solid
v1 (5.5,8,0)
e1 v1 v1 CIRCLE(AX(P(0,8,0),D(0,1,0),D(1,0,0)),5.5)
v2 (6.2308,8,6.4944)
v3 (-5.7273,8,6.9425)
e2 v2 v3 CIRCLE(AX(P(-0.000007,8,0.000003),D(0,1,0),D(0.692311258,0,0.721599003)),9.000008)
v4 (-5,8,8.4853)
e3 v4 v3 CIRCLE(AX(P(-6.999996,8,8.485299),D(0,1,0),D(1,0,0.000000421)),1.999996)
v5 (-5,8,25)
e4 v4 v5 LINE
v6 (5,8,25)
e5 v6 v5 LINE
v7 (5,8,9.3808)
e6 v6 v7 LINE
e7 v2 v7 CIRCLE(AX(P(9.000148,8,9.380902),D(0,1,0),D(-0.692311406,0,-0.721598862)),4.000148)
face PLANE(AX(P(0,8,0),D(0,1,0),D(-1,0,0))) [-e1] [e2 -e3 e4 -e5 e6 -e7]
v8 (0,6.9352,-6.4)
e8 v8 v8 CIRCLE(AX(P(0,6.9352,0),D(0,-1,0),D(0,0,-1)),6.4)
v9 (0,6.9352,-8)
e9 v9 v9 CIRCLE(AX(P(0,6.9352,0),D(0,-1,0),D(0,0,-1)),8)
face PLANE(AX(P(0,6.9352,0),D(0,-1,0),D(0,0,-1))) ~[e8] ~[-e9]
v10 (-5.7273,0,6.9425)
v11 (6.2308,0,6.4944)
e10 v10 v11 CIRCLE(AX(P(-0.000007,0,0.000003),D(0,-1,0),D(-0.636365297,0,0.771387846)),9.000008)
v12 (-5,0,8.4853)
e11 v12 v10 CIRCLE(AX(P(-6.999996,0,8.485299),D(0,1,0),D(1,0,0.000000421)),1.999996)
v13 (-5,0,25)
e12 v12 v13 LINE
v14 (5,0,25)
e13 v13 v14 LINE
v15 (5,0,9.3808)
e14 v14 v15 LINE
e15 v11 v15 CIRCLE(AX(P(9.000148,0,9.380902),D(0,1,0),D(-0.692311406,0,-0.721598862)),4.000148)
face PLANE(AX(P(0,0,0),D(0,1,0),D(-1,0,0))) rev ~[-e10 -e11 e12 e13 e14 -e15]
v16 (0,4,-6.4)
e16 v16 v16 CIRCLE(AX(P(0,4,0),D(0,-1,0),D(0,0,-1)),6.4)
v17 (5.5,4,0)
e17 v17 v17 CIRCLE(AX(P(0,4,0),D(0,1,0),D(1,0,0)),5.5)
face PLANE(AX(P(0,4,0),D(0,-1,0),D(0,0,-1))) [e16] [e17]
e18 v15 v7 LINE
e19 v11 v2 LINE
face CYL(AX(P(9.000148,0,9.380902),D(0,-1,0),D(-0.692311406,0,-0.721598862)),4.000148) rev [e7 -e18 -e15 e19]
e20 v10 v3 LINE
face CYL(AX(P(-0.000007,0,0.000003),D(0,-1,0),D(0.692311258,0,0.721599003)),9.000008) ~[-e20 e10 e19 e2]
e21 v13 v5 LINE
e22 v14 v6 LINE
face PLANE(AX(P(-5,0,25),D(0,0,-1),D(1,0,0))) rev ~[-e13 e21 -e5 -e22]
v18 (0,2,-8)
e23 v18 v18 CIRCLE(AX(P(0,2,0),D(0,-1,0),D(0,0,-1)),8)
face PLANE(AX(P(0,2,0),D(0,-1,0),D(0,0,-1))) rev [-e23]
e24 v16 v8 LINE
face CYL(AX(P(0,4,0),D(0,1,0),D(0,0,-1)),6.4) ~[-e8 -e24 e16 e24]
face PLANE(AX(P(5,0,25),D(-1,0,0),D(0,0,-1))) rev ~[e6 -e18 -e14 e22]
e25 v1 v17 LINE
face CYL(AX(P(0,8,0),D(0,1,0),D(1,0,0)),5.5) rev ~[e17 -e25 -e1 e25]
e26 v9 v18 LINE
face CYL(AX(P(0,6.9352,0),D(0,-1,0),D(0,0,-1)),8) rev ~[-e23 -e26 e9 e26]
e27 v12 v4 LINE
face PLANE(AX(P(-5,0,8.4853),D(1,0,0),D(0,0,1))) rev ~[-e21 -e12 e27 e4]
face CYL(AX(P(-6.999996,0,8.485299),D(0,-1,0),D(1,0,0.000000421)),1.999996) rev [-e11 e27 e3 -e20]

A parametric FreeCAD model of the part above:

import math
import FreeCAD as App
import Part
import Sketcher
from FreeCAD import Vector
Q = App.Units.Quantity


def add_polygon(sketch, points):
    """Adds a closed chain of lines whose ends are joined by coincident constraints."""
    first, n = sketch.GeometryCount, len(points)
    for a, b in zip(points, points[1:] + points[:1]):
        sketch.addGeometry(Part.LineSegment(App.Vector(*a, 0), App.Vector(*b, 0)), False)
    for i in range(n):
        sketch.addConstraint(Sketcher.Constraint("Coincident", first + i, 2, first + (i + 1) % n, 1))

doc = App.newDocument("Part")
body = doc.addObject("PartDesign::Body", "Body")

sketch1 = body.newObject("Sketcher::SketchObject", "Sketch")
sketch1.AttachmentSupport = (doc.getObject("XZ_Plane"), [""])
sketch1.MapMode = "FlatFace"
sketch1.addGeometry([
    Part.LineSegment(Vector(-5, 8.5, 0), Vector(-5, 25, 0)),
    Part.LineSegment(Vector(-5, 25, 0), Vector(5, 25, 0)),
    Part.LineSegment(Vector(5, 25, 0), Vector(5, 9.4, 0)),
    Part.ArcOfCircle(Part.Circle(Vector(9, 9.4, 0), Vector(0, 0, 1), 4), math.radians(180), math.radians(226)),
    Part.ArcOfCircle(Part.Circle(Vector(0, 0, 0), Vector(0, 0, 1), 9), math.radians(130), math.radians(406)),
    Part.ArcOfCircle(Part.Circle(Vector(-7, 8.5, 0), Vector(0, 0, 1), 2), math.radians(-50), math.radians(0)),
], False)
sketch1.addConstraint([
    Sketcher.Constraint("Coincident", 0, 2, 1, 1),
    Sketcher.Constraint("Coincident", 1, 2, 2, 1),
    Sketcher.Constraint("Tangent", 2, 2, 3, 1),
    Sketcher.Constraint("Tangent", 3, 2, 4, 2),
    Sketcher.Constraint("Tangent", 4, 1, 5, 1),
    Sketcher.Constraint("Tangent", 5, 2, 0, 1),
    Sketcher.Constraint("Vertical", 0),
    Sketcher.Constraint("Horizontal", 1),
    Sketcher.Constraint("Vertical", 2),
    Sketcher.Constraint("Coincident", 4, 3, -1, 1),
    Sketcher.Constraint("Radius", 3, Q("4 mm")),
    Sketcher.Constraint("Radius", 4, Q("9 mm")),
    Sketcher.Constraint("Radius", 5, Q("2 mm")),
    Sketcher.Constraint("DistanceX", 1, 1, 1, 2, Q("10 mm")),
    Sketcher.Constraint("DistanceX", 0, 2, -1, 1, Q("5 mm")),
    Sketcher.Constraint("DistanceY", -1, 1, 0, 2, Q("25 mm")),
])
pad1 = body.newObject("PartDesign::Pad", "Pad")
pad1.Profile = sketch1
pad1.Length = 8
pad1.Reversed = True

sketch2 = body.newObject("Sketcher::SketchObject", "Sketch001")
sketch2.AttachmentSupport = (doc.getObject("XZ_Plane"), [""])
sketch2.MapMode = "FlatFace"
sketch2.AttachmentOffset = App.Placement(Vector(0, 0, -8), App.Rotation())
sketch2.addGeometry(Part.Circle(Vector(0, 0, 0), Vector(0, 0, 1), 6), False)
sketch2.addConstraint([
    Sketcher.Constraint("Coincident", 0, 3, -1, 1),
    Sketcher.Constraint("Diameter", 0, Q("11 mm")),
])
pocket1 = body.newObject("PartDesign::Pocket", "Pocket")
pocket1.Profile = sketch2
pocket1.Length = 6
pocket1.Reversed = True

sketch3 = body.newObject("Sketcher::SketchObject", "Sketch002")
sketch3.AttachmentSupport = (doc.getObject("YZ_Plane"), [""])
sketch3.MapMode = "FlatFace"
add_polygon(sketch3, [(4, -6.4), (4, 0), (2, 0), (2, -8), (6.9, -8), (6.9, -6.4)])
sketch3.addConstraint([
    Sketcher.Constraint("Vertical", 0),
    Sketcher.Constraint("Horizontal", 1),
    Sketcher.Constraint("Vertical", 2),
    Sketcher.Constraint("Horizontal", 3),
    Sketcher.Constraint("Vertical", 4),
    Sketcher.Constraint("Horizontal", 5),
    Sketcher.Constraint("PointOnObject", 0, 2, -1),
    Sketcher.Constraint("DistanceX", 1, 2, 1, 1, Q("2 mm")),
    Sketcher.Constraint("DistanceY", 2, 2, 2, 1, Q("8 mm")),
    Sketcher.Constraint("DistanceY", 0, 1, 0, 2, Q("6.4 mm")),
    Sketcher.Constraint("DistanceX", -1, 1, 1, 2, Q("2 mm")),
    Sketcher.Constraint("DistanceX", 3, 1, 3, 2, Q("4.9352 mm")),
])
groove = body.newObject("PartDesign::Groove", "Groove")
groove.Profile = sketch3
groove.ReferenceAxis = (sketch3, ["H_Axis"])
groove.Angle = 360

doc.recompute()
